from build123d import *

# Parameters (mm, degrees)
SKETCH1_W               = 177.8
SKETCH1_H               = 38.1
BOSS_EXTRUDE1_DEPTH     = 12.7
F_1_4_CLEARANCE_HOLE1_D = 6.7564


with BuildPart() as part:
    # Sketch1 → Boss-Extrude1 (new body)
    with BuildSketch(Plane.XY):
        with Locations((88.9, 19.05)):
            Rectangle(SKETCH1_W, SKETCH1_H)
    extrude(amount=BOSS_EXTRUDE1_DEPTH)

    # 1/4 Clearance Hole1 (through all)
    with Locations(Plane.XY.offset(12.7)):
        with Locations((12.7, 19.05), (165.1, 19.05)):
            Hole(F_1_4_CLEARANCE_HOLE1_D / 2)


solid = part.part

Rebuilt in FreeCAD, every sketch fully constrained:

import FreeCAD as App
import Part
import Sketcher
from FreeCAD import Vector
Q = App.Units.Quantity

doc = App.newDocument("Part")
body = doc.addObject("PartDesign::Body", "Body")

# Sketch on XY plane
sketch1 = body.newObject("Sketcher::SketchObject", "Sketch")
sketch1.AttachmentSupport = (doc.getObject("XY_Plane"), [""])
sketch1.MapMode = "FlatFace"
sketch1.addGeometry([
    Part.LineSegment(Vector(0, 38, 0), Vector(0, 0, 0)),
    Part.LineSegment(Vector(0, 0, 0), Vector(178, 0, 0)),
    Part.LineSegment(Vector(178, 0, 0), Vector(178, 38, 0)),
    Part.LineSegment(Vector(178, 38, 0), Vector(0, 38, 0)),
], False)
sketch1.addConstraint([
    Sketcher.Constraint("Coincident", 0, 2, 1, 1),
    Sketcher.Constraint("Coincident", 1, 2, 2, 1),
    Sketcher.Constraint("Coincident", 2, 2, 3, 1),
    Sketcher.Constraint("Coincident", 3, 2, 0, 1),
    Sketcher.Constraint("Vertical", 0),
    Sketcher.Constraint("Horizontal", 1),
    Sketcher.Constraint("Vertical", 2),
    Sketcher.Constraint("Horizontal", 3),
    Sketcher.Constraint("Coincident", 0, 2, -1, 1),
    Sketcher.Constraint("DistanceX", 1, 1, 1, 2, Q("7 in")),
    Sketcher.Constraint("DistanceY", 0, 2, 0, 1, Q("1.5 in")),
])
pad1 = body.newObject("PartDesign::Pad", "Pad")
pad1.Profile = sketch1
pad1.Length = Q("0.5 in")

# Sketch on XY plane
sketch2 = body.newObject("Sketcher::SketchObject", "Sketch001")
sketch2.AttachmentSupport = (doc.getObject("XY_Plane"), [""])
sketch2.MapMode = "FlatFace"
sketch2.AttachmentOffset = App.Placement(Vector(0, 0, 0.5 * 25.4), App.Rotation())
sketch2.addGeometry([
    Part.Circle(Vector(12.7, 19.1, 0), Vector(0, 0, 1), 3.4),
    Part.Circle(Vector(165.1, 19.1, 0), Vector(0, 0, 1), 3.4),
], False)
sketch2.addConstraint([
    Sketcher.Constraint("Equal", 0, 1),
    Sketcher.Constraint("Horizontal", 0, 3, 1, 3),
    Sketcher.Constraint("Diameter", 0, Q("0.266 in")),
    Sketcher.Constraint("DistanceX", 0, 3, 1, 3, Q("6 in")),
    Sketcher.Constraint("DistanceX", -1, 1, 0, 3, Q("0.5 in")),
    Sketcher.Constraint("DistanceY", -1, 1, 0, 3, Q("0.75 in")),
])
doc.recompute()
hole = body.newObject("PartDesign::Hole", "Hole")
hole.Profile = sketch2
hole.ThreadType = "None"
hole.Diameter = Q("0.266 in")
hole.DepthType = "ThroughAll"

doc.recompute()
